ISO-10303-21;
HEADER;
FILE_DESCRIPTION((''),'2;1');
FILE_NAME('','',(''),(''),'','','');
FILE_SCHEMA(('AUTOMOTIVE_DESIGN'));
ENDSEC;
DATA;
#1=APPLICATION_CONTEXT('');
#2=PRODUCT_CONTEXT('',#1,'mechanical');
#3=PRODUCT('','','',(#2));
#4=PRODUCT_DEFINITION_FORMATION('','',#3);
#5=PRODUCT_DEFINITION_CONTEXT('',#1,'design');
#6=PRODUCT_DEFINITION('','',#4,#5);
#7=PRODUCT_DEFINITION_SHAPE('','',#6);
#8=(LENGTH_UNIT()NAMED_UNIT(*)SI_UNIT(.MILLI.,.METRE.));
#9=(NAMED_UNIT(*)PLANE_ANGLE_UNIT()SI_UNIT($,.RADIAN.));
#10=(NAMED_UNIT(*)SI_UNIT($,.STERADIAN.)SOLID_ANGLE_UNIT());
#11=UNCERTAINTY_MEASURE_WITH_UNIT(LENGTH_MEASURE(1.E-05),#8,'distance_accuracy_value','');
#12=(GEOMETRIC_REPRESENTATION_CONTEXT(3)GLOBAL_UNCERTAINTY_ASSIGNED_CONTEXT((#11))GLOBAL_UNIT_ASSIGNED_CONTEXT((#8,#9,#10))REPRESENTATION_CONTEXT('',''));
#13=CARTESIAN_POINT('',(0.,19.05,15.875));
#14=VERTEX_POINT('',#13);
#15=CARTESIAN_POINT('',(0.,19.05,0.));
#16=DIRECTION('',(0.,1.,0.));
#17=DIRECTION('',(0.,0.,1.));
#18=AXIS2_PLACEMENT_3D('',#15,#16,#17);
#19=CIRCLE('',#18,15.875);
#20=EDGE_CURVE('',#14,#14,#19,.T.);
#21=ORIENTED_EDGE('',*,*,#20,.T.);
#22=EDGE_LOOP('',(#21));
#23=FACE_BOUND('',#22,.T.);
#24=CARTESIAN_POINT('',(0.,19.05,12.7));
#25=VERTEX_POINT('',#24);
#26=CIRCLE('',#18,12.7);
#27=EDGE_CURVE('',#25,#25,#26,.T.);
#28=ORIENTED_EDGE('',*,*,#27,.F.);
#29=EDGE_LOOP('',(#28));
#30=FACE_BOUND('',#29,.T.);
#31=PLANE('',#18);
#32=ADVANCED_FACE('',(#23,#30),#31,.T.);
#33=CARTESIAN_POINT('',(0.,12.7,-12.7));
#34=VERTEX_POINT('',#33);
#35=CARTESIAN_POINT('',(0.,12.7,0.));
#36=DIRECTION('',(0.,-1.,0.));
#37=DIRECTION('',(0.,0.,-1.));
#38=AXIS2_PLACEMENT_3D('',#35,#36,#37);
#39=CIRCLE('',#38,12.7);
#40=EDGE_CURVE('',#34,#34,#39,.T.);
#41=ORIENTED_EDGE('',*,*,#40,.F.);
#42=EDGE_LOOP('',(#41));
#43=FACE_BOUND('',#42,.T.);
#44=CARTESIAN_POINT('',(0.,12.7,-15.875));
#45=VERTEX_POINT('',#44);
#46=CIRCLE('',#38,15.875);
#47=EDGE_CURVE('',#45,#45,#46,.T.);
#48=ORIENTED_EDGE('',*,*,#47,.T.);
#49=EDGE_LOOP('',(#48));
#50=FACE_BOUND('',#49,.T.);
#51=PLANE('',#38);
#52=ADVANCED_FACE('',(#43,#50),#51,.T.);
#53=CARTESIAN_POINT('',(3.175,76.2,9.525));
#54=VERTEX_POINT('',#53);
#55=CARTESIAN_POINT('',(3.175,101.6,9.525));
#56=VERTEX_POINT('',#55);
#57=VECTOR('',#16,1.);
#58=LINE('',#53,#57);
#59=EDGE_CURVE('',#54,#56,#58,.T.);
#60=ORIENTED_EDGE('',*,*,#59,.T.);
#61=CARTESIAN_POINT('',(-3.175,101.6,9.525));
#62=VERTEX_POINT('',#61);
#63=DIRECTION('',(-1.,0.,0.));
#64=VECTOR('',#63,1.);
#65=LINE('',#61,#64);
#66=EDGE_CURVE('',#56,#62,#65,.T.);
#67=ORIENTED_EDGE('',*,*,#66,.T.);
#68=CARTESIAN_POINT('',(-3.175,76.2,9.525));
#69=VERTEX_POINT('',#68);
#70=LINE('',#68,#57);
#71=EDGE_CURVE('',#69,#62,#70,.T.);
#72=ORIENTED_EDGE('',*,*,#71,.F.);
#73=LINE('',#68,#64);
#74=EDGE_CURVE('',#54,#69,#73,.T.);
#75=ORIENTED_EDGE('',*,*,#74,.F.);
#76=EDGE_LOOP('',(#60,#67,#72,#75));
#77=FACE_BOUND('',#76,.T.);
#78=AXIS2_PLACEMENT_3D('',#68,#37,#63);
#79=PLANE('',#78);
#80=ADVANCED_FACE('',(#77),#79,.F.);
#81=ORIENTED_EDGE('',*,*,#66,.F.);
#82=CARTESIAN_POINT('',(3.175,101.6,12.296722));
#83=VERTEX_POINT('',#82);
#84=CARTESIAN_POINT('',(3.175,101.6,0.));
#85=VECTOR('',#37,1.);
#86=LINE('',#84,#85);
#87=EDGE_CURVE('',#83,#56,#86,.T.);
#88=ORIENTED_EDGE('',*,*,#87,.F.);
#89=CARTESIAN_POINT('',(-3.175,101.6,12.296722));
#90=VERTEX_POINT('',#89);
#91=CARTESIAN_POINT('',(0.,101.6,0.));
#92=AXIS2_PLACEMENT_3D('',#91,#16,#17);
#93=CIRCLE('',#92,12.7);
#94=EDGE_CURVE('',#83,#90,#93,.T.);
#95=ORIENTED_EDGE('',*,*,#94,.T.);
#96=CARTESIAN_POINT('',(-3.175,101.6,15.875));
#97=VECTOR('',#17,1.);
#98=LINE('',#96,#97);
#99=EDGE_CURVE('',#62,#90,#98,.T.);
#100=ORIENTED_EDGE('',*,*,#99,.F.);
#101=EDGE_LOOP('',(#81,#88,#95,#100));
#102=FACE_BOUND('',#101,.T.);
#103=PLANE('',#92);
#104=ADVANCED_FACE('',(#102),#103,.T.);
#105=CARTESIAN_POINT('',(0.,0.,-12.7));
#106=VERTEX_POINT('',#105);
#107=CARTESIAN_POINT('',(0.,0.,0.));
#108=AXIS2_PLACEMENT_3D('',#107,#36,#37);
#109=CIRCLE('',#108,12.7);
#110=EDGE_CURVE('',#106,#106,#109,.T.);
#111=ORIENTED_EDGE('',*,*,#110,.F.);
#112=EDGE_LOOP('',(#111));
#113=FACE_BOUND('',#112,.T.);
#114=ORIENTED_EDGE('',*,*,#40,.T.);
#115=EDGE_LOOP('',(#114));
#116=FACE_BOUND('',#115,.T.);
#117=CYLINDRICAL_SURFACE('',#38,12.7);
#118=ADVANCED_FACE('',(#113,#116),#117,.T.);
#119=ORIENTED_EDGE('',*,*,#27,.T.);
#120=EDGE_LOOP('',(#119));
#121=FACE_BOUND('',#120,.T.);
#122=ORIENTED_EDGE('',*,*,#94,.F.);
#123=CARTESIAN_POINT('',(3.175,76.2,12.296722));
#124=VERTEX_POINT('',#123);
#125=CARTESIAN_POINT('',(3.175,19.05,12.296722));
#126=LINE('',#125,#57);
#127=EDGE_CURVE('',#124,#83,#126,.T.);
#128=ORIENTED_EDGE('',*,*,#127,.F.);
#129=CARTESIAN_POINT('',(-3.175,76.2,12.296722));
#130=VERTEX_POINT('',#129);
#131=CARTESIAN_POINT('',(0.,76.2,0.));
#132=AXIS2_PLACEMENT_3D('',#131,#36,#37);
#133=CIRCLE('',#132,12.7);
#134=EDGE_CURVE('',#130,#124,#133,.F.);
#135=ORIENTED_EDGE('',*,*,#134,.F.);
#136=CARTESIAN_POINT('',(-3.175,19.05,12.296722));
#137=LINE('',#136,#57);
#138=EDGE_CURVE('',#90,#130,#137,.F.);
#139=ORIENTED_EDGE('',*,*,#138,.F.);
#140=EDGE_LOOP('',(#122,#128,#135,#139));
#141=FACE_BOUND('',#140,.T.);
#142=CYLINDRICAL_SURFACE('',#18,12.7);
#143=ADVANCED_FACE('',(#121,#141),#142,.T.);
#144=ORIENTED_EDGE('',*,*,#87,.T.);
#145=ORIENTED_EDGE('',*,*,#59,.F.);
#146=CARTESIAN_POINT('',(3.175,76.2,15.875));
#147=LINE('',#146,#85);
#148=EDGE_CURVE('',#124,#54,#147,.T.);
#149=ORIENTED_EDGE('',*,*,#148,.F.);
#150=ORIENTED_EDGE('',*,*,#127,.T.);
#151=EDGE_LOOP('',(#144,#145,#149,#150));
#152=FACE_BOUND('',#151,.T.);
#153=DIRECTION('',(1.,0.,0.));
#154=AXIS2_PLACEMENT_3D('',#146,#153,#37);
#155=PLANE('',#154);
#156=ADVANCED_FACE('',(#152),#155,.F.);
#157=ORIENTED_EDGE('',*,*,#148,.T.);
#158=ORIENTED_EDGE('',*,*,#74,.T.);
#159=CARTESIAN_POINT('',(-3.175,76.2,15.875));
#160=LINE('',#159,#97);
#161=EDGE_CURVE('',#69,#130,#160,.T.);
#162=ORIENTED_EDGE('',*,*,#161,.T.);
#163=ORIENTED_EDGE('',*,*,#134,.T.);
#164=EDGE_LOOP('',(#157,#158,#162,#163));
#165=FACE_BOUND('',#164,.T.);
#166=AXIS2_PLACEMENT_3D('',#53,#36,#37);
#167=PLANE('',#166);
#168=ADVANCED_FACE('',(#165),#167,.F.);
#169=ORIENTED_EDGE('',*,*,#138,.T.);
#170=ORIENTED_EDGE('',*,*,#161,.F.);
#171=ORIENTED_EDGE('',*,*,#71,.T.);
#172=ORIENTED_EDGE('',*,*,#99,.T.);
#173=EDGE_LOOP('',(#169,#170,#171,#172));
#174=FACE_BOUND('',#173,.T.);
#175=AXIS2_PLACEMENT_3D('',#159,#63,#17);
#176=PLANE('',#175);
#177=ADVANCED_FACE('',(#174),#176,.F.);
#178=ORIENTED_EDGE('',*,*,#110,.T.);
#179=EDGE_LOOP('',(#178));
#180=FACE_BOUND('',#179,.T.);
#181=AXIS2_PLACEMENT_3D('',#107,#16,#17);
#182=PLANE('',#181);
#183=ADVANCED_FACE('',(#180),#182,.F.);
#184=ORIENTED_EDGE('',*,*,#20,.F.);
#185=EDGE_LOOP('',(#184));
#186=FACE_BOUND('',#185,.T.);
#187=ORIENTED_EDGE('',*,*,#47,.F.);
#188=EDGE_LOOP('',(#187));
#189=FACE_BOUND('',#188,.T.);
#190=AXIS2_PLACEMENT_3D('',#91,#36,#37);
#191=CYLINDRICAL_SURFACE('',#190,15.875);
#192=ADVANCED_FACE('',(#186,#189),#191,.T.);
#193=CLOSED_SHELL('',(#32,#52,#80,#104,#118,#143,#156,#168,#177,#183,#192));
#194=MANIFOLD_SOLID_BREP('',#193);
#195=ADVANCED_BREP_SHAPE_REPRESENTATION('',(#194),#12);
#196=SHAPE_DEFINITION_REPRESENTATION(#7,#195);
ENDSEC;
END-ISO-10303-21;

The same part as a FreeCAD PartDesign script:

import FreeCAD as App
import Part
import Sketcher
from FreeCAD import Vector
Q = App.Units.Quantity


def add_polygon(sketch, points):
    """Adds a closed chain of lines whose ends are joined by coincident constraints."""
    first, n = sketch.GeometryCount, len(points)
    for a, b in zip(points, points[1:] + points[:1]):
        sketch.addGeometry(Part.LineSegment(App.Vector(*a, 0), App.Vector(*b, 0)), False)
    for i in range(n):
        sketch.addConstraint(Sketcher.Constraint("Coincident", first + i, 2, first + (i + 1) % n, 1))

doc = App.newDocument("Part")
params = doc.addObject("Spreadsheet::Sheet", "Params")
for row, (alias, value) in enumerate([
    ("sketch1_diameter", "1.25 in"),
    ("pad1_length", "4 in"),
    ("sketch2_diameter", "1 in"),
    ("pocket1_length", "3.25 in"),
    ("sketch3_width", "0.25 in"),
    ("pocket2_length", "1 in"),
    ("sketch4_diameter", "1 in"),
    ("pocket3_length", "0.5 in"),
], start=1):
    params.set(f"A{row}", alias)
    params.set(f"B{row}", "=" + value)
    params.setAlias(f"B{row}", alias)

body = doc.addObject("PartDesign::Body", "Body")

sketch1 = doc.addObject("Sketcher::SketchObject", "Sketch")
body.addObject(sketch1)
sketch1.AttachmentSupport = (doc.XZ_Plane, [""])
sketch1.MapMode = "FlatFace"
sketch1.addGeometry(Part.Circle(Vector(0, 0, 0), Vector(0, 0, 1), 16), False)
sketch1.addConstraint(Sketcher.Constraint("Coincident", 0, 3, -1, 1))
sketch1.addConstraint(Sketcher.Constraint("Diameter", 0, Q("1.25 in")))
sketch1.setExpression("Constraints[1]", "Params.sketch1_diameter")
pad1 = doc.addObject("PartDesign::Pad", "Pad")
body.addObject(pad1)
pad1.Profile = sketch1
pad1.setExpression("Length", "Params.pad1_length")
pad1.Reversed = True

sketch2 = doc.addObject("Sketcher::SketchObject", "Sketch001")
body.addObject(sketch2)
sketch2.AttachmentSupport = (doc.XZ_Plane, [""])
sketch2.MapMode = "FlatFace"
sketch2.AttachmentOffset = App.Placement(Vector(0, 0, -4 * 25.4), App.Rotation())
add_polygon(sketch2, [(-28, -28), (-28, 28), (28, 28), (28, -28)])
sketch2.addGeometry(Part.Circle(Vector(0, 0, 0), Vector(0, 0, 1), 13), False)
sketch2.addConstraint(Sketcher.Constraint("Vertical", 0))
sketch2.addConstraint(Sketcher.Constraint("Horizontal", 1))
sketch2.addConstraint(Sketcher.Constraint("Vertical", 2))
sketch2.addConstraint(Sketcher.Constraint("Horizontal", 3))
sketch2.addConstraint(Sketcher.Constraint("Coincident", 4, 3, -1, 1))
sketch2.addConstraint(Sketcher.Constraint("Symmetric", 0, 2, 2, 2, -1, 1))
sketch2.addConstraint(Sketcher.Constraint("Equal", 3, 0))
sketch2.addConstraint(Sketcher.Constraint("Diameter", 4, Q("1 in")))
sketch2.addConstraint(Sketcher.Constraint("DistanceX", 1, 1, 1, 2, 55.966))
sketch2.setExpression("Constraints[11]", "Params.sketch2_diameter")
pocket1 = doc.addObject("PartDesign::Pocket", "Pocket")
body.addObject(pocket1)
pocket1.Profile = sketch2
pocket1.setExpression("Length", "Params.pocket1_length")
pocket1.Reversed = True

sketch3 = doc.addObject("Sketcher::SketchObject", "Sketch002")
body.addObject(sketch3)
sketch3.AttachmentSupport = (doc.XZ_Plane, [""])
sketch3.MapMode = "FlatFace"
sketch3.AttachmentOffset = App.Placement(Vector(0, 0, -4 * 25.4), App.Rotation())
add_polygon(sketch3, [(-3, 10), (-3, 16), (3, 16), (3, 10)])
sketch3.addConstraint(Sketcher.Constraint("Vertical", 0))
sketch3.addConstraint(Sketcher.Constraint("Horizontal", 1))
sketch3.addConstraint(Sketcher.Constraint("Vertical", 2))
sketch3.addConstraint(Sketcher.Constraint("Horizontal", 3))
sketch3.addConstraint(Sketcher.Constraint("Equal", 3, 0))
sketch3.addConstraint(Sketcher.Constraint("DistanceX", 1, 1, 1, 2, Q("0.25 in")))
sketch3.addConstraint(Sketcher.Constraint("DistanceX", 0, 2, -1, 1, Q("0.125 in")))
sketch3.addConstraint(Sketcher.Constraint("DistanceY", -1, 1, 0, 2, Q("0.625 in")))
sketch3.setExpression("Constraints[9]", "Params.sketch3_width")
pocket2 = doc.addObject("PartDesign::Pocket", "Pocket001")
body.addObject(pocket2)
pocket2.Profile = sketch3
pocket2.setExpression("Length", "Params.pocket2_length")
pocket2.Reversed = True

sketch4 = doc.addObject("Sketcher::SketchObject", "Sketch003")
body.addObject(sketch4)
sketch4.AttachmentSupport = (doc.XZ_Plane, [""])
sketch4.MapMode = "FlatFace"
add_polygon(sketch4, [(-28, 28), (-28, -28), (28, -28), (28, 28)])
sketch4.addGeometry(Part.Circle(Vector(0, 0, 0), Vector(0, 0, 1), 13), False)
sketch4.addConstraint(Sketcher.Constraint("Vertical", 0))
sketch4.addConstraint(Sketcher.Constraint("Horizontal", 1))
sketch4.addConstraint(Sketcher.Constraint("Vertical", 2))
sketch4.addConstraint(Sketcher.Constraint("Horizontal", 3))
sketch4.addConstraint(Sketcher.Constraint("Coincident", 4, 3, -1, 1))
sketch4.addConstraint(Sketcher.Constraint("Symmetric", 0, 2, 2, 2, -1, 1))
sketch4.addConstraint(Sketcher.Constraint("Equal", 3, 0))
sketch4.addConstraint(Sketcher.Constraint("Diameter", 4, Q("1 in")))
sketch4.addConstraint(Sketcher.Constraint("DistanceX", 1, 1, 1, 2, 55.966))
sketch4.setExpression("Constraints[11]", "Params.sketch4_diameter")
pocket3 = doc.addObject("PartDesign::Pocket", "Pocket002")
body.addObject(pocket3)
pocket3.Profile = sketch4
pocket3.setExpression("Length", "Params.pocket3_length")

doc.recompute()
